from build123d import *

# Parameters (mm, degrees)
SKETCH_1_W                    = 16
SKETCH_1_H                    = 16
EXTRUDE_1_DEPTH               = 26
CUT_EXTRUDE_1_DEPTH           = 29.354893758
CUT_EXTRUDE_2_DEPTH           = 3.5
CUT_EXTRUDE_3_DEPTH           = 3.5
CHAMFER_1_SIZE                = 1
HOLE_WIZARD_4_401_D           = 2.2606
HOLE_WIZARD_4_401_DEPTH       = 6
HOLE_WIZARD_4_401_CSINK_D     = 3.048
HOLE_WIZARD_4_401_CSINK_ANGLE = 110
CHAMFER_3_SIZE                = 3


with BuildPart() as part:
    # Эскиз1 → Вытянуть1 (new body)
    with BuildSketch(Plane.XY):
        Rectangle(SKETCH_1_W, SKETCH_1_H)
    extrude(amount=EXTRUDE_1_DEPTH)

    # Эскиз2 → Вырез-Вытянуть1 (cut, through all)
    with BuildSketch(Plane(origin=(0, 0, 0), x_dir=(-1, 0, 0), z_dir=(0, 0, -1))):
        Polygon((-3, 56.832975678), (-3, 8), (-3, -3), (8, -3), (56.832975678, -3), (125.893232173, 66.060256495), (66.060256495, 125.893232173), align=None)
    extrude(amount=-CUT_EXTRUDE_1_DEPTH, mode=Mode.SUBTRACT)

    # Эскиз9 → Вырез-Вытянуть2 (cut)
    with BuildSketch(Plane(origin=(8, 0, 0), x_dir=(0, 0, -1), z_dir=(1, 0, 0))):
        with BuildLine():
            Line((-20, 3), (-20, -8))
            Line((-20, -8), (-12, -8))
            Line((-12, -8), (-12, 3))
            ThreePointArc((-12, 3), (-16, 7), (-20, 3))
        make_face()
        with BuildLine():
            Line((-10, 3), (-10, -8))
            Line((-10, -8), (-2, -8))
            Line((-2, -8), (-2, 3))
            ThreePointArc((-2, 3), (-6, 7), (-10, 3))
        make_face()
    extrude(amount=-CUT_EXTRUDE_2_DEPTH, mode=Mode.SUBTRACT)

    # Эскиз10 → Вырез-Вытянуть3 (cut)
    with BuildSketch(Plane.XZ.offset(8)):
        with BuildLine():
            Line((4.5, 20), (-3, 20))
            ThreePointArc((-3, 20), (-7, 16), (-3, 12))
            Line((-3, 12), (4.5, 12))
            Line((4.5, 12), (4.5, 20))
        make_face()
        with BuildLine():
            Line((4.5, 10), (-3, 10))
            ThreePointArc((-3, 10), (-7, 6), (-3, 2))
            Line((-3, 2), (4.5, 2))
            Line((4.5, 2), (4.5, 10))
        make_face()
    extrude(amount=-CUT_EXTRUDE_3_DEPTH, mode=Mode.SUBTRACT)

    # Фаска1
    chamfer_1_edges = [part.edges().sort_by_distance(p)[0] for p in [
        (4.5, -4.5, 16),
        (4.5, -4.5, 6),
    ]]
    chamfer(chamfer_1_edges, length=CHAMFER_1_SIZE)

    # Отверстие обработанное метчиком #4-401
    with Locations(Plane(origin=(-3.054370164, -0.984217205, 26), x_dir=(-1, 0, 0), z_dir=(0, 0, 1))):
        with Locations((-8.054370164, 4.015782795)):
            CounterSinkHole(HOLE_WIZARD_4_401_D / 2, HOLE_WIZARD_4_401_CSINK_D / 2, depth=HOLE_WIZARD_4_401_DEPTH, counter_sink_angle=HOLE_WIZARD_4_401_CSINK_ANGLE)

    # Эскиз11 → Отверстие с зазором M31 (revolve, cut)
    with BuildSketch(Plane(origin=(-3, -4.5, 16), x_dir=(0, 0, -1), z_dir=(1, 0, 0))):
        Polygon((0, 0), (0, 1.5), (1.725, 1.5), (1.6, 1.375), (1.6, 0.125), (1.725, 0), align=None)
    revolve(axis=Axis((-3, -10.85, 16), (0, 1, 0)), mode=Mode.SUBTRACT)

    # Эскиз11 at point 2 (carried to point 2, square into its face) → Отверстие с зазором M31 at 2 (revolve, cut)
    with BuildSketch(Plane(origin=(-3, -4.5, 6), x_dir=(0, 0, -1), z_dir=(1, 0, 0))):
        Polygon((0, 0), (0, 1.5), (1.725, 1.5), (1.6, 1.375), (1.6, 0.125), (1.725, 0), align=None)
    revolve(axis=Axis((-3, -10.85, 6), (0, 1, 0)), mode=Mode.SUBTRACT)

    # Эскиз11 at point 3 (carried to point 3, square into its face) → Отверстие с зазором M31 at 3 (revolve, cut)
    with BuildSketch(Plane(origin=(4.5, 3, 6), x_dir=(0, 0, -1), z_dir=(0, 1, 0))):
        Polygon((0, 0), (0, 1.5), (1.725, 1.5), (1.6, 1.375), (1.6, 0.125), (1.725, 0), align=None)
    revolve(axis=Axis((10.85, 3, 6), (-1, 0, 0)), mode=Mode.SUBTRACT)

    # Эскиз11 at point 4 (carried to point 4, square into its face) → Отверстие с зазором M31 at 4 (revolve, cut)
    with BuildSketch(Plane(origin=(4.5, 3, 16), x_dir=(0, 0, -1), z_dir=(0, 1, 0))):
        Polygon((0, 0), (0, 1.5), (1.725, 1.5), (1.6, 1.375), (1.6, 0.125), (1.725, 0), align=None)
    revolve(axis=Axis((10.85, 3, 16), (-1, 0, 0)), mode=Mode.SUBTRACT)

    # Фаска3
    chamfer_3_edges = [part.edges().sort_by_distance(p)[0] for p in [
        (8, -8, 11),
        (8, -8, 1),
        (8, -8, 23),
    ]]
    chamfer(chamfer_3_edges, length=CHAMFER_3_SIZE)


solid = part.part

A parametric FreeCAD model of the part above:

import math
import FreeCAD as App
import Part
import Sketcher
from FreeCAD import Vector
Q = App.Units.Quantity


def edges_at(feature, points):
    """Names of the edges that pass closest to the given points."""
    edges = feature.Shape.Edges
    near = lambda p: min(range(len(edges)), key=lambda i: edges[i].distToShape(Part.Vertex(*p))[0])
    return sorted({f"Edge{near(p) + 1}" for p in points})

doc = App.newDocument("Part")
body = doc.addObject("PartDesign::Body", "Body")

sketch1 = body.newObject("Sketcher::SketchObject", "Sketch")
sketch1.AttachmentSupport = (doc.getObject("XY_Plane"), [""])
sketch1.MapMode = "FlatFace"
sketch1.addGeometry([
    Part.LineSegment(Vector(-8, 8, 0), Vector(-8, -8, 0)),
    Part.LineSegment(Vector(-8, -8, 0), Vector(8, -8, 0)),
    Part.LineSegment(Vector(8, -8, 0), Vector(8, 8, 0)),
    Part.LineSegment(Vector(8, 8, 0), Vector(-8, 8, 0)),
], False)
sketch1.addConstraint([
    Sketcher.Constraint("Coincident", 0, 2, 1, 1),
    Sketcher.Constraint("Coincident", 1, 2, 2, 1),
    Sketcher.Constraint("Coincident", 2, 2, 3, 1),
    Sketcher.Constraint("Coincident", 3, 2, 0, 1),
    Sketcher.Constraint("Vertical", 0),
    Sketcher.Constraint("Horizontal", 1),
    Sketcher.Constraint("Vertical", 2),
    Sketcher.Constraint("Horizontal", 3),
    Sketcher.Constraint("Symmetric", 0, 2, 2, 2, -1, 1),
    Sketcher.Constraint("Equal", 3, 0),
    Sketcher.Constraint("DistanceX", 1, 1, 1, 2, Q("16 mm")),
])
pad1 = body.newObject("PartDesign::Pad", "Pad")
pad1.Profile = sketch1
pad1.Length = 26

sketch2 = body.newObject("Sketcher::SketchObject", "Sketch001")
sketch2.AttachmentSupport = (doc.getObject("XY_Plane"), [""])
sketch2.MapMode = "FlatFace"
sketch2.addGeometry([
    Part.LineSegment(Vector(3, 56.832976, 0), Vector(3, -3, 0)),
    Part.LineSegment(Vector(3, -3, 0), Vector(-56.832976, -3, 0)),
    Part.LineSegment(Vector(-56.832976, -3, 0), Vector(-125.893232, 66.060256, 0)),
    Part.LineSegment(Vector(-125.893232, 66.060256, 0), Vector(-66.060256, 125.893232, 0)),
    Part.LineSegment(Vector(-66.060256, 125.893232, 0), Vector(3, 56.832976, 0)),
], False)
sketch2.addConstraint([
    Sketcher.Constraint("Coincident", 0, 2, 1, 1),
    Sketcher.Constraint("Coincident", 1, 2, 2, 1),
    Sketcher.Constraint("Coincident", 2, 2, 3, 1),
    Sketcher.Constraint("Coincident", 3, 2, 4, 1),
    Sketcher.Constraint("Coincident", 4, 2, 0, 1),
    Sketcher.Constraint("Vertical", 0),
    Sketcher.Constraint("Horizontal", 1),
    Sketcher.Constraint("Perpendicular", 2, 3),
    Sketcher.Constraint("Perpendicular", 3, 4),
    Sketcher.Constraint("Equal", 1, 0),
    Sketcher.Constraint("Equal", 2, 4),
    Sketcher.Constraint("DistanceX", -1, 1, 0, 2, Q("3 mm")),
    Sketcher.Constraint("DistanceY", 0, 2, -1, 1, Q("3 mm")),
    Sketcher.Constraint("Distance", 2, Q("97.665951 mm")),
    Sketcher.Constraint("DistanceX", 1, 2, 1, 1, Q("59.832976 mm")),
])
pocket1 = body.newObject("PartDesign::Pocket", "Pocket")
pocket1.Profile = sketch2
pocket1.Type = "ThroughAll"
pocket1.Reversed = True

sketch3 = body.newObject("Sketcher::SketchObject", "Sketch002")
sketch3.AttachmentSupport = (doc.getObject("YZ_Plane"), [""])
sketch3.MapMode = "FlatFace"
sketch3.AttachmentOffset = App.Placement(Vector(0, 0, 8), App.Rotation())
sketch3.addGeometry([
    Part.LineSegment(Vector(3, 20, 0), Vector(-8, 20, 0)),
    Part.LineSegment(Vector(-8, 20, 0), Vector(-8, 12, 0)),
    Part.LineSegment(Vector(-8, 12, 0), Vector(3, 12, 0)),
    Part.ArcOfCircle(Part.Circle(Vector(3, 16, 0), Vector(0, 0, 1), 4), math.radians(-90), math.radians(90)),
    Part.LineSegment(Vector(3, 10, 0), Vector(-8, 10, 0)),
    Part.LineSegment(Vector(-8, 10, 0), Vector(-8, 2, 0)),
    Part.LineSegment(Vector(-8, 2, 0), Vector(3, 2, 0)),
    Part.ArcOfCircle(Part.Circle(Vector(3, 6, 0), Vector(0, 0, 1), 4), math.radians(-90), math.radians(90)),
], False)
sketch3.addConstraint([
    Sketcher.Constraint("Coincident", 0, 2, 1, 1),
    Sketcher.Constraint("Coincident", 1, 2, 2, 1),
    Sketcher.Constraint("Tangent", 2, 2, 3, 1),
    Sketcher.Constraint("Tangent", 3, 2, 0, 1),
    Sketcher.Constraint("Coincident", 4, 2, 5, 1),
    Sketcher.Constraint("Coincident", 5, 2, 6, 1),
    Sketcher.Constraint("Tangent", 6, 2, 7, 1),
    Sketcher.Constraint("Tangent", 7, 2, 4, 1),
    Sketcher.Constraint("Horizontal", 0),
    Sketcher.Constraint("Vertical", 1),
    Sketcher.Constraint("Horizontal", 2),
    Sketcher.Constraint("Horizontal", 4),
    Sketcher.Constraint("Vertical", 5),
    Sketcher.Constraint("Horizontal", 6),
    Sketcher.Constraint("Equal", 3, 7),
    Sketcher.Constraint("Vertical", 3, 3, 7, 3),
    Sketcher.Constraint("Vertical", 1, 2, 4, 2),
    Sketcher.Constraint("Radius", 3, Q("4 mm")),
    Sketcher.Constraint("DistanceX", 0, 2, 0, 1, Q("11 mm")),
    Sketcher.Constraint("DistanceX", -1, 1, 3, 3, Q("3 mm")),
    Sketcher.Constraint("DistanceY", -1, 1, 3, 3, Q("16 mm")),
    Sketcher.Constraint("DistanceY", -1, 1, 7, 3, Q("6 mm")),
])
pocket2 = body.newObject("PartDesign::Pocket", "Pocket001")
pocket2.Profile = sketch3
pocket2.Length = 3.5

sketch4 = body.newObject("Sketcher::SketchObject", "Sketch003")
sketch4.AttachmentSupport = (doc.getObject("XZ_Plane"), [""])
sketch4.MapMode = "FlatFace"
sketch4.AttachmentOffset = App.Placement(Vector(0, 0, 8), App.Rotation())
sketch4.addGeometry([
    Part.LineSegment(Vector(4.5, 20, 0), Vector(-3, 20, 0)),
    Part.ArcOfCircle(Part.Circle(Vector(-3, 16, 0), Vector(0, 0, 1), 4), math.radians(90), math.radians(270)),
    Part.LineSegment(Vector(-3, 12, 0), Vector(4.5, 12, 0)),
    Part.LineSegment(Vector(4.5, 12, 0), Vector(4.5, 20, 0)),
    Part.LineSegment(Vector(4.5, 10, 0), Vector(-3, 10, 0)),
    Part.ArcOfCircle(Part.Circle(Vector(-3, 6, 0), Vector(0, 0, 1), 4), math.radians(90), math.radians(270)),
    Part.LineSegment(Vector(-3, 2, 0), Vector(4.5, 2, 0)),
    Part.LineSegment(Vector(4.5, 2, 0), Vector(4.5, 10, 0)),
], False)
sketch4.addConstraint([
    Sketcher.Constraint("Tangent", 0, 2, 1, 1),
    Sketcher.Constraint("Tangent", 1, 2, 2, 1),
    Sketcher.Constraint("Coincident", 2, 2, 3, 1),
    Sketcher.Constraint("Coincident", 3, 2, 0, 1),
    Sketcher.Constraint("Tangent", 4, 2, 5, 1),
    Sketcher.Constraint("Tangent", 5, 2, 6, 1),
    Sketcher.Constraint("Coincident", 6, 2, 7, 1),
    Sketcher.Constraint("Coincident", 7, 2, 4, 1),
    Sketcher.Constraint("Horizontal", 0),
    Sketcher.Constraint("Horizontal", 2),
    Sketcher.Constraint("Vertical", 3),
    Sketcher.Constraint("Horizontal", 4),
    Sketcher.Constraint("Horizontal", 6),
    Sketcher.Constraint("Vertical", 7),
    Sketcher.Constraint("Equal", 1, 5),
    Sketcher.Constraint("Vertical", 1, 3, 5, 3),
    Sketcher.Constraint("Vertical", 3, 2, 6, 2),
    Sketcher.Constraint("Radius", 1, Q("4 mm")),
    Sketcher.Constraint("DistanceX", 0, 2, 0, 1, Q("7.5 mm")),
    Sketcher.Constraint("DistanceX", 1, 3, -1, 1, Q("3 mm")),
    Sketcher.Constraint("DistanceY", -1, 1, 1, 3, Q("16 mm")),
    Sketcher.Constraint("DistanceY", -1, 1, 5, 3, Q("6 mm")),
])
pocket3 = body.newObject("PartDesign::Pocket", "Pocket002")
pocket3.Profile = sketch4
pocket3.Length = 3.5
doc.recompute()

chamfer = body.newObject("PartDesign::Chamfer", "Chamfer")
chamfer.Base = (pocket3, edges_at(pocket3, [(4.5, -4.5, 16), (4.5, -4.5, 6)]))
chamfer.Size = 1

sketch5 = body.newObject("Sketcher::SketchObject", "Sketch004")
sketch5.AttachmentSupport = (doc.getObject("XY_Plane"), [""])
sketch5.MapMode = "FlatFace"
sketch5.AttachmentOffset = App.Placement(Vector(0, 0, 26), App.Rotation())
sketch5.addGeometry(Part.Circle(Vector(5, -5, 0), Vector(0, 0, 1), 1.1303), False)
sketch5.addConstraint([
    Sketcher.Constraint("DistanceX", -1, 1, 0, 3, Q("5 mm")),
    Sketcher.Constraint("DistanceY", 0, 3, -1, 1, Q("5 mm")),
    Sketcher.Constraint("Diameter", 0, Q("2.2606 mm")),
])
doc.recompute()
hole = body.newObject("PartDesign::Hole", "Hole")
hole.Profile = sketch5
hole.ThreadType = "None"
hole.Diameter = 2.2606
hole.DepthType = "Dimension"
hole.Depth = 6
hole.DrillPoint = "Flat"
hole.HoleCutType = "Countersink"
hole.HoleCutDiameter = 3.048
hole.HoleCutCountersinkAngle = 110

sketch6 = body.newObject("Sketcher::SketchObject", "Sketch005")
sketch6.AttachmentSupport = (doc.getObject("YZ_Plane"), [""])
sketch6.MapMode = "FlatFace"
sketch6.AttachmentOffset = App.Placement(Vector(0, 0, -3), App.Rotation())
sketch6.addGeometry([
    Part.LineSegment(Vector(-3, 16, 0), Vector(-4.5, 16, 0)),
    Part.LineSegment(Vector(-4.5, 16, 0), Vector(-4.5, 14.275, 0)),
    Part.LineSegment(Vector(-4.5, 14.275, 0), Vector(-4.375, 14.4, 0)),
    Part.LineSegment(Vector(-4.375, 14.4, 0), Vector(-3.125, 14.4, 0)),
    Part.LineSegment(Vector(-3.125, 14.4, 0), Vector(-3, 14.275, 0)),
    Part.LineSegment(Vector(-3, 14.275, 0), Vector(-3, 16, 0)),
], False)
sketch6.addGeometry(Part.LineSegment(Vector(-4.5, 16, 0), Vector(-3, 16, 0)), True)
sketch6.addConstraint([
    Sketcher.Constraint("Coincident", 0, 2, 1, 1),
    Sketcher.Constraint("Coincident", 1, 2, 2, 1),
    Sketcher.Constraint("Coincident", 2, 2, 3, 1),
    Sketcher.Constraint("Coincident", 3, 2, 4, 1),
    Sketcher.Constraint("Coincident", 4, 2, 5, 1),
    Sketcher.Constraint("Coincident", 5, 2, 0, 1),
    Sketcher.Constraint("Horizontal", 0),
    Sketcher.Constraint("Vertical", 1),
    Sketcher.Constraint("Horizontal", 3),
    Sketcher.Constraint("Vertical", 5),
    Sketcher.Constraint("Horizontal", 6),
    Sketcher.Constraint("Coincident", 6, 1, 0, 2),
    Sketcher.Constraint("Perpendicular", 2, 4),
    Sketcher.Constraint("Horizontal", 1, 2, 4, 2),
    Sketcher.Constraint("Vertical", 4, 2, 6, 2),
    Sketcher.Constraint("Equal", 2, 4),
    Sketcher.Constraint("DistanceX", 0, 2, 0, 1, Q("1.5 mm")),
    Sketcher.Constraint("DistanceY", -1, 1, 0, 2, Q("16 mm")),
    Sketcher.Constraint("DistanceX", 4, 2, -1, 1, Q("3 mm")),
    Sketcher.Constraint("DistanceX", 3, 1, 3, 2, Q("1.25 mm")),
    Sketcher.Constraint("DistanceY", -1, 1, 2, 2, Q("14.4 mm")),
])
groove = body.newObject("PartDesign::Groove", "Groove")
groove.Profile = sketch6
groove.ReferenceAxis = (sketch6, ["Axis0"])
groove.Angle = 360

sketch7 = body.newObject("Sketcher::SketchObject", "Sketch006")
sketch7.AttachmentSupport = (doc.getObject("YZ_Plane"), [""])
sketch7.MapMode = "FlatFace"
sketch7.AttachmentOffset = App.Placement(Vector(0, 0, -3), App.Rotation())
sketch7.addGeometry([
    Part.LineSegment(Vector(-3, 6, 0), Vector(-4.5, 6, 0)),
    Part.LineSegment(Vector(-4.5, 6, 0), Vector(-4.5, 4.275, 0)),
    Part.LineSegment(Vector(-4.5, 4.275, 0), Vector(-4.375, 4.4, 0)),
    Part.LineSegment(Vector(-4.375, 4.4, 0), Vector(-3.125, 4.4, 0)),
    Part.LineSegment(Vector(-3.125, 4.4, 0), Vector(-3, 4.275, 0)),
    Part.LineSegment(Vector(-3, 4.275, 0), Vector(-3, 6, 0)),
], False)
sketch7.addGeometry(Part.LineSegment(Vector(-4.5, 6, 0), Vector(-3, 6, 0)), True)
sketch7.addConstraint([
    Sketcher.Constraint("Coincident", 0, 2, 1, 1),
    Sketcher.Constraint("Coincident", 1, 2, 2, 1),
    Sketcher.Constraint("Coincident", 2, 2, 3, 1),
    Sketcher.Constraint("Coincident", 3, 2, 4, 1),
    Sketcher.Constraint("Coincident", 4, 2, 5, 1),
    Sketcher.Constraint("Coincident", 5, 2, 0, 1),
    Sketcher.Constraint("Horizontal", 0),
    Sketcher.Constraint("Vertical", 1),
    Sketcher.Constraint("Horizontal", 3),
    Sketcher.Constraint("Vertical", 5),
    Sketcher.Constraint("Horizontal", 6),
    Sketcher.Constraint("Coincident", 6, 1, 0, 2),
    Sketcher.Constraint("Perpendicular", 2, 4),
    Sketcher.Constraint("Horizontal", 1, 2, 4, 2),
    Sketcher.Constraint("Vertical", 4, 2, 6, 2),
    Sketcher.Constraint("Equal", 2, 4),
    Sketcher.Constraint("DistanceX", 0, 2, 0, 1, Q("1.5 mm")),
    Sketcher.Constraint("DistanceY", -1, 1, 0, 2, Q("6 mm")),
    Sketcher.Constraint("DistanceX", 4, 2, -1, 1, Q("3 mm")),
    Sketcher.Constraint("DistanceX", 3, 1, 3, 2, Q("1.25 mm")),
    Sketcher.Constraint("DistanceY", -1, 1, 2, 2, Q("4.4 mm")),
])
groove2 = body.newObject("PartDesign::Groove", "Groove001")
groove2.Profile = sketch7
groove2.ReferenceAxis = (sketch7, ["Axis0"])
groove2.Angle = 360

sketch8 = body.newObject("Sketcher::SketchObject", "Sketch007")
sketch8.AttachmentSupport = (doc.getObject("XZ_Plane"), [""])
sketch8.MapMode = "FlatFace"
sketch8.AttachmentOffset = App.Placement(Vector(0, 0, -3), App.Rotation())
sketch8.addGeometry([
    Part.LineSegment(Vector(3, 6, 0), Vector(4.5, 6, 0)),
    Part.LineSegment(Vector(4.5, 6, 0), Vector(4.5, 4.275, 0)),
    Part.LineSegment(Vector(4.5, 4.275, 0), Vector(4.375, 4.4, 0)),
    Part.LineSegment(Vector(4.375, 4.4, 0), Vector(3.125, 4.4, 0)),
    Part.LineSegment(Vector(3.125, 4.4, 0), Vector(3, 4.275, 0)),
    Part.LineSegment(Vector(3, 4.275, 0), Vector(3, 6, 0)),
], False)
sketch8.addGeometry(Part.LineSegment(Vector(4.5, 6, 0), Vector(3, 6, 0)), True)
sketch8.addConstraint([
    Sketcher.Constraint("Coincident", 0, 2, 1, 1),
    Sketcher.Constraint("Coincident", 1, 2, 2, 1),
    Sketcher.Constraint("Coincident", 2, 2, 3, 1),
    Sketcher.Constraint("Coincident", 3, 2, 4, 1),
    Sketcher.Constraint("Coincident", 4, 2, 5, 1),
    Sketcher.Constraint("Coincident", 5, 2, 0, 1),
    Sketcher.Constraint("Horizontal", 0),
    Sketcher.Constraint("Vertical", 1),
    Sketcher.Constraint("Horizontal", 3),
    Sketcher.Constraint("Vertical", 5),
    Sketcher.Constraint("Horizontal", 6),
    Sketcher.Constraint("Coincident", 6, 1, 0, 2),
    Sketcher.Constraint("Perpendicular", 2, 4),
    Sketcher.Constraint("Horizontal", 1, 2, 4, 2),
    Sketcher.Constraint("Vertical", 4, 2, 6, 2),
    Sketcher.Constraint("Equal", 2, 4),
    Sketcher.Constraint("DistanceX", 0, 1, 0, 2, Q("1.5 mm")),
    Sketcher.Constraint("DistanceY", -1, 1, 0, 2, Q("6 mm")),
    Sketcher.Constraint("DistanceX", -1, 1, 4, 2, Q("3 mm")),
    Sketcher.Constraint("DistanceX", 3, 2, 3, 1, Q("1.25 mm")),
    Sketcher.Constraint("DistanceY", -1, 1, 2, 2, Q("4.4 mm")),
])
groove3 = body.newObject("PartDesign::Groove", "Groove002")
groove3.Profile = sketch8
groove3.ReferenceAxis = (sketch8, ["Axis0"])
groove3.Angle = 360

sketch9 = body.newObject("Sketcher::SketchObject", "Sketch008")
sketch9.AttachmentSupport = (doc.getObject("XZ_Plane"), [""])
sketch9.MapMode = "FlatFace"
sketch9.AttachmentOffset = App.Placement(Vector(0, 0, -3), App.Rotation())
sketch9.addGeometry([
    Part.LineSegment(Vector(3, 16, 0), Vector(4.5, 16, 0)),
    Part.LineSegment(Vector(4.5, 16, 0), Vector(4.5, 14.275, 0)),
    Part.LineSegment(Vector(4.5, 14.275, 0), Vector(4.375, 14.4, 0)),
    Part.LineSegment(Vector(4.375, 14.4, 0), Vector(3.125, 14.4, 0)),
    Part.LineSegment(Vector(3.125, 14.4, 0), Vector(3, 14.275, 0)),
    Part.LineSegment(Vector(3, 14.275, 0), Vector(3, 16, 0)),
], False)
sketch9.addGeometry(Part.LineSegment(Vector(4.5, 16, 0), Vector(3, 16, 0)), True)
sketch9.addConstraint([
    Sketcher.Constraint("Coincident", 0, 2, 1, 1),
    Sketcher.Constraint("Coincident", 1, 2, 2, 1),
    Sketcher.Constraint("Coincident", 2, 2, 3, 1),
    Sketcher.Constraint("Coincident", 3, 2, 4, 1),
    Sketcher.Constraint("Coincident", 4, 2, 5, 1),
    Sketcher.Constraint("Coincident", 5, 2, 0, 1),
    Sketcher.Constraint("Horizontal", 0),
    Sketcher.Constraint("Vertical", 1),
    Sketcher.Constraint("Horizontal", 3),
    Sketcher.Constraint("Vertical", 5),
    Sketcher.Constraint("Horizontal", 6),
    Sketcher.Constraint("Coincident", 6, 1, 0, 2),
    Sketcher.Constraint("Perpendicular", 2, 4),
    Sketcher.Constraint("Horizontal", 1, 2, 4, 2),
    Sketcher.Constraint("Vertical", 4, 2, 6, 2),
    Sketcher.Constraint("Equal", 2, 4),
    Sketcher.Constraint("DistanceX", 0, 1, 0, 2, Q("1.5 mm")),
    Sketcher.Constraint("DistanceY", -1, 1, 0, 2, Q("16 mm")),
    Sketcher.Constraint("DistanceX", -1, 1, 4, 2, Q("3 mm")),
    Sketcher.Constraint("DistanceX", 3, 2, 3, 1, Q("1.25 mm")),
    Sketcher.Constraint("DistanceY", -1, 1, 2, 2, Q("14.4 mm")),
])
groove4 = body.newObject("PartDesign::Groove", "Groove003")
groove4.Profile = sketch9
groove4.ReferenceAxis = (sketch9, ["Axis0"])
groove4.Angle = 360
doc.recompute()

chamfer2 = body.newObject("PartDesign::Chamfer", "Chamfer001")
chamfer2.Base = (groove4, edges_at(groove4, [(8, -8, 11), (8, -8, 1), (8, -8, 23)]))
chamfer2.Size = 3

doc.recompute()
